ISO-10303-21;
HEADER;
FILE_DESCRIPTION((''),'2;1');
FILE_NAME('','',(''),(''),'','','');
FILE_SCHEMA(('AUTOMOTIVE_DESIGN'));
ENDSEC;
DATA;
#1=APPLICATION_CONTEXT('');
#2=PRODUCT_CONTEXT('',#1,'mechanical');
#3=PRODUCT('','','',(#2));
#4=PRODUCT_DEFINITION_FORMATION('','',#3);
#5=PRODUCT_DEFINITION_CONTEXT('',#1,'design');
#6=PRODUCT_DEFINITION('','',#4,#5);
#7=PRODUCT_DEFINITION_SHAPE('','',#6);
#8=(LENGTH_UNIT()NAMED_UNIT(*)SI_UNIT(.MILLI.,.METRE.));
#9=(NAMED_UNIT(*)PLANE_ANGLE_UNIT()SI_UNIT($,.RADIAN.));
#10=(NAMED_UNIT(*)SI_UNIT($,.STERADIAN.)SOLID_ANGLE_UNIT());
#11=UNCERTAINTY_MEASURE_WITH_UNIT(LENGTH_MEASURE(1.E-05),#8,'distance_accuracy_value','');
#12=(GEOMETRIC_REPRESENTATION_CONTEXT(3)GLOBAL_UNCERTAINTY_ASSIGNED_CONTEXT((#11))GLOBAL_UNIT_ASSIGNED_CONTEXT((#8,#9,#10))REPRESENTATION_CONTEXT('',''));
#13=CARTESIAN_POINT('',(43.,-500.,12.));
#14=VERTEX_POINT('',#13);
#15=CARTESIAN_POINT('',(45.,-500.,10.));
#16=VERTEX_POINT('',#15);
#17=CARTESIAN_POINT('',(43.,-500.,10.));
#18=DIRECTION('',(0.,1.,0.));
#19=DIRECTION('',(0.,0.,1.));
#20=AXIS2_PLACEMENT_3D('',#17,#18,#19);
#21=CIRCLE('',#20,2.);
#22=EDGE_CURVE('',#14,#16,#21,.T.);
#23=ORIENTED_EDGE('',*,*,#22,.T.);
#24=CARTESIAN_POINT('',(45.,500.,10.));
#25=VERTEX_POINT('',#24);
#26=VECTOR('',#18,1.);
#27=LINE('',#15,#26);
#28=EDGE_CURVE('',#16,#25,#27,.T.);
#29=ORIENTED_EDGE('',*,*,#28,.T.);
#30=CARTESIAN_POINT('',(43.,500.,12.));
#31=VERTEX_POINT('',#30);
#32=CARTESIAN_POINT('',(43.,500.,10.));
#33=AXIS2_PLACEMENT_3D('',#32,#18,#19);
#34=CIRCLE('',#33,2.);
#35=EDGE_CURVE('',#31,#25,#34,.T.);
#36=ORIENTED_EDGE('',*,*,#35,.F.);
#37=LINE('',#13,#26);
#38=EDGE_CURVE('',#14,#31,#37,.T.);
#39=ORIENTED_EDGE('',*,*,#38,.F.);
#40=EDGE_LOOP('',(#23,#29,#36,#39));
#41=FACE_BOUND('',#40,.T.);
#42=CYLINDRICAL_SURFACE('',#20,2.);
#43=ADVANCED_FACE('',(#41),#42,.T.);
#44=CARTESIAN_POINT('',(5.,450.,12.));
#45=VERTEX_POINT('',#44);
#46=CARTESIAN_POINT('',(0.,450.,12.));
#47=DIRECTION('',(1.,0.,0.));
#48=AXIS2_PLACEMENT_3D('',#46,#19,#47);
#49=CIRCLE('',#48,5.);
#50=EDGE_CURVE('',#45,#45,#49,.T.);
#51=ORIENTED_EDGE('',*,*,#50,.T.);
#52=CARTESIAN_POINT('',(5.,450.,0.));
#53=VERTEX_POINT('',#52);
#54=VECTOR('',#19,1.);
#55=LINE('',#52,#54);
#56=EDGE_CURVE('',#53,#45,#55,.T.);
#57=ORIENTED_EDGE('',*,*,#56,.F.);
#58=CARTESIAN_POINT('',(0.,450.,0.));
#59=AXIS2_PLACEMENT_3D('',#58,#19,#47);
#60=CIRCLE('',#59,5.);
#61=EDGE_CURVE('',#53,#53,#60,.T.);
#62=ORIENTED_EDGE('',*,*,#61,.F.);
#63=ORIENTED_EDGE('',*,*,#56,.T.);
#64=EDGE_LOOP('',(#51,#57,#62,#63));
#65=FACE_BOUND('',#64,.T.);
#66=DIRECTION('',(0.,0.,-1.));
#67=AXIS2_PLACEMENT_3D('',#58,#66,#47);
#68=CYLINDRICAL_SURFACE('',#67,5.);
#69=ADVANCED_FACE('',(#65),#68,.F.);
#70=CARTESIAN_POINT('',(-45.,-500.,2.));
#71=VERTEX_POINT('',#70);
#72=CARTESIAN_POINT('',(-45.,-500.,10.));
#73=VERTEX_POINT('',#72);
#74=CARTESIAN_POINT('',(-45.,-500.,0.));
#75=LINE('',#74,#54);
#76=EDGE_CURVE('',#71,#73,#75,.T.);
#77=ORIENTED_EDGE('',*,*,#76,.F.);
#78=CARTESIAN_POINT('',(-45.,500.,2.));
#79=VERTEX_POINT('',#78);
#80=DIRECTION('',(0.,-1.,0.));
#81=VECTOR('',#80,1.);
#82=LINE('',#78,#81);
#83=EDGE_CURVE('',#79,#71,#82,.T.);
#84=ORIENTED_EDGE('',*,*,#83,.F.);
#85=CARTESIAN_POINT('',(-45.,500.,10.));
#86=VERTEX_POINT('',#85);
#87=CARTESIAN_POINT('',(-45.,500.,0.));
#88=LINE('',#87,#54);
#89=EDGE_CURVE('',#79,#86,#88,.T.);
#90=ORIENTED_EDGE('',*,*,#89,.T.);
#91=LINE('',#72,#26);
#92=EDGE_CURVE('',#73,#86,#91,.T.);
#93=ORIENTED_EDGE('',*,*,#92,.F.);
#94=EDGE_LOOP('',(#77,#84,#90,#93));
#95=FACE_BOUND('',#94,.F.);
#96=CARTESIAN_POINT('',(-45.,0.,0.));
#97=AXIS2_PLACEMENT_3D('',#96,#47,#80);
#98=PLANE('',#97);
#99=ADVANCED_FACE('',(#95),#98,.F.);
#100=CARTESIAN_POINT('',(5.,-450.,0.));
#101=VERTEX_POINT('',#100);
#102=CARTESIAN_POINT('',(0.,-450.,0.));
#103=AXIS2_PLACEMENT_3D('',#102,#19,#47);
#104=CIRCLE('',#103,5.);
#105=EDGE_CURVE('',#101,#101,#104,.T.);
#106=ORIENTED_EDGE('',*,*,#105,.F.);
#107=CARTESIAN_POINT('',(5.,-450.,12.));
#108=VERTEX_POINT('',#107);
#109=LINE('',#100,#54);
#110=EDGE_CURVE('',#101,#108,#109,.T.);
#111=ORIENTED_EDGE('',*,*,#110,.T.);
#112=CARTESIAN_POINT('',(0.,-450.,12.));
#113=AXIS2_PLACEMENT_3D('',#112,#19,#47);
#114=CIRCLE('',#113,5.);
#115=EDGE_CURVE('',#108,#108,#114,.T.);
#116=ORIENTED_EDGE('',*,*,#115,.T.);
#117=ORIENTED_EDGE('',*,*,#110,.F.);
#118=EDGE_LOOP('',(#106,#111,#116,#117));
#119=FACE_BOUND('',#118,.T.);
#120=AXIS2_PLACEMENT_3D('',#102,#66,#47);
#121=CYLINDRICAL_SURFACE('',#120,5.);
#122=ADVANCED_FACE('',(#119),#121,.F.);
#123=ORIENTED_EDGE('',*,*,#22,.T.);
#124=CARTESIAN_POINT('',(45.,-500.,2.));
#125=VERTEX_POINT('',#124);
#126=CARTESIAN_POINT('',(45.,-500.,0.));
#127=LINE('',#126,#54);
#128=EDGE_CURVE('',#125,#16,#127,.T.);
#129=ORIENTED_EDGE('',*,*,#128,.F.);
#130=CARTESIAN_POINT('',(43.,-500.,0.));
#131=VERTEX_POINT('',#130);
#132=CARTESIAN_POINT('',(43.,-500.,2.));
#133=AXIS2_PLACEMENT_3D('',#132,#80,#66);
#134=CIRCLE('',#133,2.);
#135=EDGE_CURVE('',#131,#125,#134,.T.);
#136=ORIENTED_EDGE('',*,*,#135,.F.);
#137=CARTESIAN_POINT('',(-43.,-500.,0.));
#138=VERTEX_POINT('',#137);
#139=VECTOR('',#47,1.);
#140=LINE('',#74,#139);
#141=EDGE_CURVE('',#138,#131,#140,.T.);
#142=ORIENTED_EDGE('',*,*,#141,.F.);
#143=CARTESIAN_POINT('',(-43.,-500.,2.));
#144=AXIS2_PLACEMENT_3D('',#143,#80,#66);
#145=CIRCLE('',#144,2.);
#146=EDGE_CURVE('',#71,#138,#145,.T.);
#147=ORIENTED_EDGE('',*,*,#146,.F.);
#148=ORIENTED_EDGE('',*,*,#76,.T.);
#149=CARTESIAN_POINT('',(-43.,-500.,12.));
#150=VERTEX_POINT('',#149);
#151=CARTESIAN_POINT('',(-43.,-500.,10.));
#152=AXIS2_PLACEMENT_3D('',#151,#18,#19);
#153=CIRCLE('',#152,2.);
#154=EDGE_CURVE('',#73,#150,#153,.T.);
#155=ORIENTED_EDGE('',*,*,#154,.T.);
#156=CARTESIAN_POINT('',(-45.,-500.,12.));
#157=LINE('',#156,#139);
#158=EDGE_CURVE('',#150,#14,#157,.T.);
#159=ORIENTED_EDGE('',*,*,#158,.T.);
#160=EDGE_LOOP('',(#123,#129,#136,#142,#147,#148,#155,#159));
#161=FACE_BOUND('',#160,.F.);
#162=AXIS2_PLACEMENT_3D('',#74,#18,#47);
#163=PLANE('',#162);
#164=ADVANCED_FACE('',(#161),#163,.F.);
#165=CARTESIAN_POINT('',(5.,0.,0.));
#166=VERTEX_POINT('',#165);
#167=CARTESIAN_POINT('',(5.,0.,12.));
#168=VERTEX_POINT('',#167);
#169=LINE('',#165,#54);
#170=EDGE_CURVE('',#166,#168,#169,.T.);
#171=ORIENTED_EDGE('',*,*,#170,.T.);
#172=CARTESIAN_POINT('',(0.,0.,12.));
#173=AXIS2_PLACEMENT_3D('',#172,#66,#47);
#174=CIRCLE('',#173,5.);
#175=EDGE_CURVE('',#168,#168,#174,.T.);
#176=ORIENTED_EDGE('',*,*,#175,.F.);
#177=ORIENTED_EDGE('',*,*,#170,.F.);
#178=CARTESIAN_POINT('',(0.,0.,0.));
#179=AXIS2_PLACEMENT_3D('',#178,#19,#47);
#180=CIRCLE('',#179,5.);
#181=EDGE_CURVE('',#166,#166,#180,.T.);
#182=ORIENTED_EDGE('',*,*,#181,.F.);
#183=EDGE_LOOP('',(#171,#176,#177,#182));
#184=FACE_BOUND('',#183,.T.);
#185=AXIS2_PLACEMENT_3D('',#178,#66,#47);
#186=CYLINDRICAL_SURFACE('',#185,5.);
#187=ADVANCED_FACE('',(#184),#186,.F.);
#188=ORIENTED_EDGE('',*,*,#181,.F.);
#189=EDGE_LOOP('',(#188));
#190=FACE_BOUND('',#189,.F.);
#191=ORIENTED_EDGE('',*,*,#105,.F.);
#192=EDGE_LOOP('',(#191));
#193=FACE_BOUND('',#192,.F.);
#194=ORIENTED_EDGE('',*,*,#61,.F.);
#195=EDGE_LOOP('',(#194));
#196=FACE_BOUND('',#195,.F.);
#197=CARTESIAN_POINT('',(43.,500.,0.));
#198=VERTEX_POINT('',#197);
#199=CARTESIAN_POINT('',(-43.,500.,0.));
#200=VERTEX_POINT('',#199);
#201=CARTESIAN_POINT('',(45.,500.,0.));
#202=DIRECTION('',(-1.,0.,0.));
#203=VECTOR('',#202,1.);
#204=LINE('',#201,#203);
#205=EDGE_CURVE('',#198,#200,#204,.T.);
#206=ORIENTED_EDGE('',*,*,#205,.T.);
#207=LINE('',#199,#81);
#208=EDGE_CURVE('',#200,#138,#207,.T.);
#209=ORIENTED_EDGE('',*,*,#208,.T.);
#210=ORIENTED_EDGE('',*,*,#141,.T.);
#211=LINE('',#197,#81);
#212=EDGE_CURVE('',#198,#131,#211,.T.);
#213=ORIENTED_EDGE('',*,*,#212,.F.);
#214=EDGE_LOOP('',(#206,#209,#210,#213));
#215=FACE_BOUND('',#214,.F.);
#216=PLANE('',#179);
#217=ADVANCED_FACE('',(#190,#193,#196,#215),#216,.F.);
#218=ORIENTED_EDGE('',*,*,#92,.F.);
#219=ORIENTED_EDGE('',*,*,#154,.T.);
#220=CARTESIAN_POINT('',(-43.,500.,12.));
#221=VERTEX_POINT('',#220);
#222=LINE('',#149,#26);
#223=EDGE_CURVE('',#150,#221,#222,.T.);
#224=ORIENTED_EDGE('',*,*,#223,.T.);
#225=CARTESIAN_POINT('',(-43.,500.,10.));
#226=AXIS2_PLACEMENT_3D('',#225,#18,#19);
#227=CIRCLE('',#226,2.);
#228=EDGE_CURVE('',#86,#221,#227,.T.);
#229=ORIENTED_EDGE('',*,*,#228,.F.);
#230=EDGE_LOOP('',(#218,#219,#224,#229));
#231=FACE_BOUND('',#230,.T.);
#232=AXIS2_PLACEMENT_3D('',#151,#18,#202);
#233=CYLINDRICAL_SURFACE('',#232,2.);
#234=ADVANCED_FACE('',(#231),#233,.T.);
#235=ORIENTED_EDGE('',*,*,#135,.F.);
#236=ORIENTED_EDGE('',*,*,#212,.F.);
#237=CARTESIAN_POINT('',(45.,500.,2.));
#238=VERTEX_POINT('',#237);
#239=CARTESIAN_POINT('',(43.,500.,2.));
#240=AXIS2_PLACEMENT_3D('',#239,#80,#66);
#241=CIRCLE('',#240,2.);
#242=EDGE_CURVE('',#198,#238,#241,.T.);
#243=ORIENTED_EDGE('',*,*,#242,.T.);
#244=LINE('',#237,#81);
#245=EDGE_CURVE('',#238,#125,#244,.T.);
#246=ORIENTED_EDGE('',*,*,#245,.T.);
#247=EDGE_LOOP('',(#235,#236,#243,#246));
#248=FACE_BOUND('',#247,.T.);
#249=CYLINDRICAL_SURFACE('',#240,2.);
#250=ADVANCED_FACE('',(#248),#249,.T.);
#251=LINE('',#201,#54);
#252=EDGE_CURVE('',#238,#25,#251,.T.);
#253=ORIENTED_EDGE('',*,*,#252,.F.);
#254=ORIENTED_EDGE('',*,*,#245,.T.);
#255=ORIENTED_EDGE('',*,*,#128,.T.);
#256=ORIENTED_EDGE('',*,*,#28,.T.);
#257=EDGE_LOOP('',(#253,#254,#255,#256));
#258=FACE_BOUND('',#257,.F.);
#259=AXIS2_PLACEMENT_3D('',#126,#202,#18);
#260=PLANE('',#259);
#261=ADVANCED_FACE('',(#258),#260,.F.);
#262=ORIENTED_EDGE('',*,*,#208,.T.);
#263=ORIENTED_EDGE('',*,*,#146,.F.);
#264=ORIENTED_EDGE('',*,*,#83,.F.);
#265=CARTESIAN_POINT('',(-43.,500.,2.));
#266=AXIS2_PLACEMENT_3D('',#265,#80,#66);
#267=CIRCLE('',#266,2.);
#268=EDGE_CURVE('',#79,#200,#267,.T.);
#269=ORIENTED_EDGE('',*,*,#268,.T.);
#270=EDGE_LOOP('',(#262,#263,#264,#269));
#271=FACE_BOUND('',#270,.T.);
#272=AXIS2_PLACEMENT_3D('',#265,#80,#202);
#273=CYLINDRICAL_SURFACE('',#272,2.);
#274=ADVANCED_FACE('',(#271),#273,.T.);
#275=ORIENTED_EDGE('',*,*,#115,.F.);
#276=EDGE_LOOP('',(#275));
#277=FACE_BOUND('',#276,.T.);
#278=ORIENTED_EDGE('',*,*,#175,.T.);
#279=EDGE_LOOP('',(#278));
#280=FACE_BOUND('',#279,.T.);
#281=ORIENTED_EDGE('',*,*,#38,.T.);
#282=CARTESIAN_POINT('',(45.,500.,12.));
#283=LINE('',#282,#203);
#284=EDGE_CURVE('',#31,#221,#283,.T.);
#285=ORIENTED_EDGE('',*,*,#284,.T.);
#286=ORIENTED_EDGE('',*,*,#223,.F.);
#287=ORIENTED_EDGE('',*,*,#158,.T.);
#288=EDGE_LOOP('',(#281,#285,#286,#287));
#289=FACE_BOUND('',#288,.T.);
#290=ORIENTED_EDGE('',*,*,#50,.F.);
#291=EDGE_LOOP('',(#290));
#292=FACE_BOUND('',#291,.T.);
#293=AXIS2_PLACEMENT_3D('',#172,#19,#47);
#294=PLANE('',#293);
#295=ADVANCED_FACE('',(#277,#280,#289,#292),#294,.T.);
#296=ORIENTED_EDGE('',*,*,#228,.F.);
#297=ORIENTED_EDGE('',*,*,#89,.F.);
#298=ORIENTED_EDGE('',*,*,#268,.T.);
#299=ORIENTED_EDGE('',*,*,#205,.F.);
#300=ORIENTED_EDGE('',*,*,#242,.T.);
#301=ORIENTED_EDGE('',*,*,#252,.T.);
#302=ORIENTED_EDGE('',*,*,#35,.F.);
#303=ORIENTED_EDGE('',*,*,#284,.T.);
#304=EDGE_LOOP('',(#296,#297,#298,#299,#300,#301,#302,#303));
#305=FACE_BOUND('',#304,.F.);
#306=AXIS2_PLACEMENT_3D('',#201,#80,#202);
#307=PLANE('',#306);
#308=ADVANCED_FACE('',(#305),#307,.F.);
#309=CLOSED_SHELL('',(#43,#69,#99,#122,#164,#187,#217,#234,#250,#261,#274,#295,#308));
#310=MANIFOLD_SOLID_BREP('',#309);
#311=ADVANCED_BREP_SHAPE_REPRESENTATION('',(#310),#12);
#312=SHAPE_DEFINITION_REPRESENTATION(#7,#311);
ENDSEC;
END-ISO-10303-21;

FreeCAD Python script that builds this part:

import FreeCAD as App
import Part
import Sketcher

V = App.Vector
Q = App.Units.Quantity


def edges_at(feature, points):
    """Names of the edges that pass closest to the given points."""
    edges = feature.Shape.Edges
    near = lambda p: min(range(len(edges)), key=lambda i: edges[i].distToShape(Part.Vertex(*p))[0])
    return sorted({f"Edge{near(p) + 1}" for p in points})


def add_polygon(sketch, points):
    """Adds a closed chain of lines whose ends are joined by coincident constraints."""
    first, n = sketch.GeometryCount, len(points)
    for a, b in zip(points, points[1:] + points[:1]):
        sketch.addGeometry(Part.LineSegment(App.Vector(*a, 0), App.Vector(*b, 0)), False)
    for i in range(n):
        sketch.addConstraint(Sketcher.Constraint("Coincident", first + i, 2, first + (i + 1) % n, 1))

doc = App.newDocument("Part")
body = doc.addObject("PartDesign::Body", "Body")

# Sketch on XY plane
sketch1 = body.newObject("Sketcher::SketchObject", "Sketch")
sketch1.AttachmentSupport = (doc.getObject("XY_Plane"), [""])
sketch1.MapMode = "FlatFace"
add_polygon(sketch1, [(-45, -500), (45, -500), (45, 500), (-45, 500)])  # lines 0-3
sketch1.addGeometry(Part.Circle(V(0, 0, 0), V(0, 0, 1), 5), False)  # 4
sketch1.addGeometry(Part.Circle(V(0, -450, 0), V(0, 0, 1), 5), False)  # 5
sketch1.addGeometry(Part.Circle(V(0, 450, 0), V(0, 0, 1), 5), False)  # 6
sketch1.addConstraint([
    Sketcher.Constraint("Horizontal", 0),
    Sketcher.Constraint("Vertical", 1),
    Sketcher.Constraint("Horizontal", 2),
    Sketcher.Constraint("Vertical", 3),
    Sketcher.Constraint("Coincident", 4, 3, -1, 1),
    Sketcher.Constraint("Equal", 4, 5),
    Sketcher.Constraint("Equal", 5, 6),
    Sketcher.Constraint("Symmetric", 5, 3, 6, 3, -1, 1),
    Sketcher.Constraint("Symmetric", 0, 2, 2, 2, -1, 1),
    Sketcher.Constraint("PointOnObject", 5, 3, -2),
    Sketcher.Constraint("Diameter", 4, Q("10 mm")),
    Sketcher.Constraint("DistanceX", 0, 1, 0, 2, Q("90 mm")),
    Sketcher.Constraint("DistanceY", 1, 1, 1, 2, Q("1000 mm")),
    Sketcher.Constraint("DistanceY", 5, 3, -1, 1, Q("450 mm")),
])
pad1 = body.newObject("PartDesign::Pad", "Pad")
pad1.Profile = sketch1
pad1.Length = 12
doc.recompute()

fillet = body.newObject("PartDesign::Fillet", "Fillet")
fillet.Base = (pad1, edges_at(pad1, [
    (-45, -250, 12),
    (-45, 250, 12),
    (-45, -250, 0),
    (-45, 250, 0),
    (45, 0, 12),
    (45, 0, 0),
]))
fillet.Radius = 2

doc.recompute()
